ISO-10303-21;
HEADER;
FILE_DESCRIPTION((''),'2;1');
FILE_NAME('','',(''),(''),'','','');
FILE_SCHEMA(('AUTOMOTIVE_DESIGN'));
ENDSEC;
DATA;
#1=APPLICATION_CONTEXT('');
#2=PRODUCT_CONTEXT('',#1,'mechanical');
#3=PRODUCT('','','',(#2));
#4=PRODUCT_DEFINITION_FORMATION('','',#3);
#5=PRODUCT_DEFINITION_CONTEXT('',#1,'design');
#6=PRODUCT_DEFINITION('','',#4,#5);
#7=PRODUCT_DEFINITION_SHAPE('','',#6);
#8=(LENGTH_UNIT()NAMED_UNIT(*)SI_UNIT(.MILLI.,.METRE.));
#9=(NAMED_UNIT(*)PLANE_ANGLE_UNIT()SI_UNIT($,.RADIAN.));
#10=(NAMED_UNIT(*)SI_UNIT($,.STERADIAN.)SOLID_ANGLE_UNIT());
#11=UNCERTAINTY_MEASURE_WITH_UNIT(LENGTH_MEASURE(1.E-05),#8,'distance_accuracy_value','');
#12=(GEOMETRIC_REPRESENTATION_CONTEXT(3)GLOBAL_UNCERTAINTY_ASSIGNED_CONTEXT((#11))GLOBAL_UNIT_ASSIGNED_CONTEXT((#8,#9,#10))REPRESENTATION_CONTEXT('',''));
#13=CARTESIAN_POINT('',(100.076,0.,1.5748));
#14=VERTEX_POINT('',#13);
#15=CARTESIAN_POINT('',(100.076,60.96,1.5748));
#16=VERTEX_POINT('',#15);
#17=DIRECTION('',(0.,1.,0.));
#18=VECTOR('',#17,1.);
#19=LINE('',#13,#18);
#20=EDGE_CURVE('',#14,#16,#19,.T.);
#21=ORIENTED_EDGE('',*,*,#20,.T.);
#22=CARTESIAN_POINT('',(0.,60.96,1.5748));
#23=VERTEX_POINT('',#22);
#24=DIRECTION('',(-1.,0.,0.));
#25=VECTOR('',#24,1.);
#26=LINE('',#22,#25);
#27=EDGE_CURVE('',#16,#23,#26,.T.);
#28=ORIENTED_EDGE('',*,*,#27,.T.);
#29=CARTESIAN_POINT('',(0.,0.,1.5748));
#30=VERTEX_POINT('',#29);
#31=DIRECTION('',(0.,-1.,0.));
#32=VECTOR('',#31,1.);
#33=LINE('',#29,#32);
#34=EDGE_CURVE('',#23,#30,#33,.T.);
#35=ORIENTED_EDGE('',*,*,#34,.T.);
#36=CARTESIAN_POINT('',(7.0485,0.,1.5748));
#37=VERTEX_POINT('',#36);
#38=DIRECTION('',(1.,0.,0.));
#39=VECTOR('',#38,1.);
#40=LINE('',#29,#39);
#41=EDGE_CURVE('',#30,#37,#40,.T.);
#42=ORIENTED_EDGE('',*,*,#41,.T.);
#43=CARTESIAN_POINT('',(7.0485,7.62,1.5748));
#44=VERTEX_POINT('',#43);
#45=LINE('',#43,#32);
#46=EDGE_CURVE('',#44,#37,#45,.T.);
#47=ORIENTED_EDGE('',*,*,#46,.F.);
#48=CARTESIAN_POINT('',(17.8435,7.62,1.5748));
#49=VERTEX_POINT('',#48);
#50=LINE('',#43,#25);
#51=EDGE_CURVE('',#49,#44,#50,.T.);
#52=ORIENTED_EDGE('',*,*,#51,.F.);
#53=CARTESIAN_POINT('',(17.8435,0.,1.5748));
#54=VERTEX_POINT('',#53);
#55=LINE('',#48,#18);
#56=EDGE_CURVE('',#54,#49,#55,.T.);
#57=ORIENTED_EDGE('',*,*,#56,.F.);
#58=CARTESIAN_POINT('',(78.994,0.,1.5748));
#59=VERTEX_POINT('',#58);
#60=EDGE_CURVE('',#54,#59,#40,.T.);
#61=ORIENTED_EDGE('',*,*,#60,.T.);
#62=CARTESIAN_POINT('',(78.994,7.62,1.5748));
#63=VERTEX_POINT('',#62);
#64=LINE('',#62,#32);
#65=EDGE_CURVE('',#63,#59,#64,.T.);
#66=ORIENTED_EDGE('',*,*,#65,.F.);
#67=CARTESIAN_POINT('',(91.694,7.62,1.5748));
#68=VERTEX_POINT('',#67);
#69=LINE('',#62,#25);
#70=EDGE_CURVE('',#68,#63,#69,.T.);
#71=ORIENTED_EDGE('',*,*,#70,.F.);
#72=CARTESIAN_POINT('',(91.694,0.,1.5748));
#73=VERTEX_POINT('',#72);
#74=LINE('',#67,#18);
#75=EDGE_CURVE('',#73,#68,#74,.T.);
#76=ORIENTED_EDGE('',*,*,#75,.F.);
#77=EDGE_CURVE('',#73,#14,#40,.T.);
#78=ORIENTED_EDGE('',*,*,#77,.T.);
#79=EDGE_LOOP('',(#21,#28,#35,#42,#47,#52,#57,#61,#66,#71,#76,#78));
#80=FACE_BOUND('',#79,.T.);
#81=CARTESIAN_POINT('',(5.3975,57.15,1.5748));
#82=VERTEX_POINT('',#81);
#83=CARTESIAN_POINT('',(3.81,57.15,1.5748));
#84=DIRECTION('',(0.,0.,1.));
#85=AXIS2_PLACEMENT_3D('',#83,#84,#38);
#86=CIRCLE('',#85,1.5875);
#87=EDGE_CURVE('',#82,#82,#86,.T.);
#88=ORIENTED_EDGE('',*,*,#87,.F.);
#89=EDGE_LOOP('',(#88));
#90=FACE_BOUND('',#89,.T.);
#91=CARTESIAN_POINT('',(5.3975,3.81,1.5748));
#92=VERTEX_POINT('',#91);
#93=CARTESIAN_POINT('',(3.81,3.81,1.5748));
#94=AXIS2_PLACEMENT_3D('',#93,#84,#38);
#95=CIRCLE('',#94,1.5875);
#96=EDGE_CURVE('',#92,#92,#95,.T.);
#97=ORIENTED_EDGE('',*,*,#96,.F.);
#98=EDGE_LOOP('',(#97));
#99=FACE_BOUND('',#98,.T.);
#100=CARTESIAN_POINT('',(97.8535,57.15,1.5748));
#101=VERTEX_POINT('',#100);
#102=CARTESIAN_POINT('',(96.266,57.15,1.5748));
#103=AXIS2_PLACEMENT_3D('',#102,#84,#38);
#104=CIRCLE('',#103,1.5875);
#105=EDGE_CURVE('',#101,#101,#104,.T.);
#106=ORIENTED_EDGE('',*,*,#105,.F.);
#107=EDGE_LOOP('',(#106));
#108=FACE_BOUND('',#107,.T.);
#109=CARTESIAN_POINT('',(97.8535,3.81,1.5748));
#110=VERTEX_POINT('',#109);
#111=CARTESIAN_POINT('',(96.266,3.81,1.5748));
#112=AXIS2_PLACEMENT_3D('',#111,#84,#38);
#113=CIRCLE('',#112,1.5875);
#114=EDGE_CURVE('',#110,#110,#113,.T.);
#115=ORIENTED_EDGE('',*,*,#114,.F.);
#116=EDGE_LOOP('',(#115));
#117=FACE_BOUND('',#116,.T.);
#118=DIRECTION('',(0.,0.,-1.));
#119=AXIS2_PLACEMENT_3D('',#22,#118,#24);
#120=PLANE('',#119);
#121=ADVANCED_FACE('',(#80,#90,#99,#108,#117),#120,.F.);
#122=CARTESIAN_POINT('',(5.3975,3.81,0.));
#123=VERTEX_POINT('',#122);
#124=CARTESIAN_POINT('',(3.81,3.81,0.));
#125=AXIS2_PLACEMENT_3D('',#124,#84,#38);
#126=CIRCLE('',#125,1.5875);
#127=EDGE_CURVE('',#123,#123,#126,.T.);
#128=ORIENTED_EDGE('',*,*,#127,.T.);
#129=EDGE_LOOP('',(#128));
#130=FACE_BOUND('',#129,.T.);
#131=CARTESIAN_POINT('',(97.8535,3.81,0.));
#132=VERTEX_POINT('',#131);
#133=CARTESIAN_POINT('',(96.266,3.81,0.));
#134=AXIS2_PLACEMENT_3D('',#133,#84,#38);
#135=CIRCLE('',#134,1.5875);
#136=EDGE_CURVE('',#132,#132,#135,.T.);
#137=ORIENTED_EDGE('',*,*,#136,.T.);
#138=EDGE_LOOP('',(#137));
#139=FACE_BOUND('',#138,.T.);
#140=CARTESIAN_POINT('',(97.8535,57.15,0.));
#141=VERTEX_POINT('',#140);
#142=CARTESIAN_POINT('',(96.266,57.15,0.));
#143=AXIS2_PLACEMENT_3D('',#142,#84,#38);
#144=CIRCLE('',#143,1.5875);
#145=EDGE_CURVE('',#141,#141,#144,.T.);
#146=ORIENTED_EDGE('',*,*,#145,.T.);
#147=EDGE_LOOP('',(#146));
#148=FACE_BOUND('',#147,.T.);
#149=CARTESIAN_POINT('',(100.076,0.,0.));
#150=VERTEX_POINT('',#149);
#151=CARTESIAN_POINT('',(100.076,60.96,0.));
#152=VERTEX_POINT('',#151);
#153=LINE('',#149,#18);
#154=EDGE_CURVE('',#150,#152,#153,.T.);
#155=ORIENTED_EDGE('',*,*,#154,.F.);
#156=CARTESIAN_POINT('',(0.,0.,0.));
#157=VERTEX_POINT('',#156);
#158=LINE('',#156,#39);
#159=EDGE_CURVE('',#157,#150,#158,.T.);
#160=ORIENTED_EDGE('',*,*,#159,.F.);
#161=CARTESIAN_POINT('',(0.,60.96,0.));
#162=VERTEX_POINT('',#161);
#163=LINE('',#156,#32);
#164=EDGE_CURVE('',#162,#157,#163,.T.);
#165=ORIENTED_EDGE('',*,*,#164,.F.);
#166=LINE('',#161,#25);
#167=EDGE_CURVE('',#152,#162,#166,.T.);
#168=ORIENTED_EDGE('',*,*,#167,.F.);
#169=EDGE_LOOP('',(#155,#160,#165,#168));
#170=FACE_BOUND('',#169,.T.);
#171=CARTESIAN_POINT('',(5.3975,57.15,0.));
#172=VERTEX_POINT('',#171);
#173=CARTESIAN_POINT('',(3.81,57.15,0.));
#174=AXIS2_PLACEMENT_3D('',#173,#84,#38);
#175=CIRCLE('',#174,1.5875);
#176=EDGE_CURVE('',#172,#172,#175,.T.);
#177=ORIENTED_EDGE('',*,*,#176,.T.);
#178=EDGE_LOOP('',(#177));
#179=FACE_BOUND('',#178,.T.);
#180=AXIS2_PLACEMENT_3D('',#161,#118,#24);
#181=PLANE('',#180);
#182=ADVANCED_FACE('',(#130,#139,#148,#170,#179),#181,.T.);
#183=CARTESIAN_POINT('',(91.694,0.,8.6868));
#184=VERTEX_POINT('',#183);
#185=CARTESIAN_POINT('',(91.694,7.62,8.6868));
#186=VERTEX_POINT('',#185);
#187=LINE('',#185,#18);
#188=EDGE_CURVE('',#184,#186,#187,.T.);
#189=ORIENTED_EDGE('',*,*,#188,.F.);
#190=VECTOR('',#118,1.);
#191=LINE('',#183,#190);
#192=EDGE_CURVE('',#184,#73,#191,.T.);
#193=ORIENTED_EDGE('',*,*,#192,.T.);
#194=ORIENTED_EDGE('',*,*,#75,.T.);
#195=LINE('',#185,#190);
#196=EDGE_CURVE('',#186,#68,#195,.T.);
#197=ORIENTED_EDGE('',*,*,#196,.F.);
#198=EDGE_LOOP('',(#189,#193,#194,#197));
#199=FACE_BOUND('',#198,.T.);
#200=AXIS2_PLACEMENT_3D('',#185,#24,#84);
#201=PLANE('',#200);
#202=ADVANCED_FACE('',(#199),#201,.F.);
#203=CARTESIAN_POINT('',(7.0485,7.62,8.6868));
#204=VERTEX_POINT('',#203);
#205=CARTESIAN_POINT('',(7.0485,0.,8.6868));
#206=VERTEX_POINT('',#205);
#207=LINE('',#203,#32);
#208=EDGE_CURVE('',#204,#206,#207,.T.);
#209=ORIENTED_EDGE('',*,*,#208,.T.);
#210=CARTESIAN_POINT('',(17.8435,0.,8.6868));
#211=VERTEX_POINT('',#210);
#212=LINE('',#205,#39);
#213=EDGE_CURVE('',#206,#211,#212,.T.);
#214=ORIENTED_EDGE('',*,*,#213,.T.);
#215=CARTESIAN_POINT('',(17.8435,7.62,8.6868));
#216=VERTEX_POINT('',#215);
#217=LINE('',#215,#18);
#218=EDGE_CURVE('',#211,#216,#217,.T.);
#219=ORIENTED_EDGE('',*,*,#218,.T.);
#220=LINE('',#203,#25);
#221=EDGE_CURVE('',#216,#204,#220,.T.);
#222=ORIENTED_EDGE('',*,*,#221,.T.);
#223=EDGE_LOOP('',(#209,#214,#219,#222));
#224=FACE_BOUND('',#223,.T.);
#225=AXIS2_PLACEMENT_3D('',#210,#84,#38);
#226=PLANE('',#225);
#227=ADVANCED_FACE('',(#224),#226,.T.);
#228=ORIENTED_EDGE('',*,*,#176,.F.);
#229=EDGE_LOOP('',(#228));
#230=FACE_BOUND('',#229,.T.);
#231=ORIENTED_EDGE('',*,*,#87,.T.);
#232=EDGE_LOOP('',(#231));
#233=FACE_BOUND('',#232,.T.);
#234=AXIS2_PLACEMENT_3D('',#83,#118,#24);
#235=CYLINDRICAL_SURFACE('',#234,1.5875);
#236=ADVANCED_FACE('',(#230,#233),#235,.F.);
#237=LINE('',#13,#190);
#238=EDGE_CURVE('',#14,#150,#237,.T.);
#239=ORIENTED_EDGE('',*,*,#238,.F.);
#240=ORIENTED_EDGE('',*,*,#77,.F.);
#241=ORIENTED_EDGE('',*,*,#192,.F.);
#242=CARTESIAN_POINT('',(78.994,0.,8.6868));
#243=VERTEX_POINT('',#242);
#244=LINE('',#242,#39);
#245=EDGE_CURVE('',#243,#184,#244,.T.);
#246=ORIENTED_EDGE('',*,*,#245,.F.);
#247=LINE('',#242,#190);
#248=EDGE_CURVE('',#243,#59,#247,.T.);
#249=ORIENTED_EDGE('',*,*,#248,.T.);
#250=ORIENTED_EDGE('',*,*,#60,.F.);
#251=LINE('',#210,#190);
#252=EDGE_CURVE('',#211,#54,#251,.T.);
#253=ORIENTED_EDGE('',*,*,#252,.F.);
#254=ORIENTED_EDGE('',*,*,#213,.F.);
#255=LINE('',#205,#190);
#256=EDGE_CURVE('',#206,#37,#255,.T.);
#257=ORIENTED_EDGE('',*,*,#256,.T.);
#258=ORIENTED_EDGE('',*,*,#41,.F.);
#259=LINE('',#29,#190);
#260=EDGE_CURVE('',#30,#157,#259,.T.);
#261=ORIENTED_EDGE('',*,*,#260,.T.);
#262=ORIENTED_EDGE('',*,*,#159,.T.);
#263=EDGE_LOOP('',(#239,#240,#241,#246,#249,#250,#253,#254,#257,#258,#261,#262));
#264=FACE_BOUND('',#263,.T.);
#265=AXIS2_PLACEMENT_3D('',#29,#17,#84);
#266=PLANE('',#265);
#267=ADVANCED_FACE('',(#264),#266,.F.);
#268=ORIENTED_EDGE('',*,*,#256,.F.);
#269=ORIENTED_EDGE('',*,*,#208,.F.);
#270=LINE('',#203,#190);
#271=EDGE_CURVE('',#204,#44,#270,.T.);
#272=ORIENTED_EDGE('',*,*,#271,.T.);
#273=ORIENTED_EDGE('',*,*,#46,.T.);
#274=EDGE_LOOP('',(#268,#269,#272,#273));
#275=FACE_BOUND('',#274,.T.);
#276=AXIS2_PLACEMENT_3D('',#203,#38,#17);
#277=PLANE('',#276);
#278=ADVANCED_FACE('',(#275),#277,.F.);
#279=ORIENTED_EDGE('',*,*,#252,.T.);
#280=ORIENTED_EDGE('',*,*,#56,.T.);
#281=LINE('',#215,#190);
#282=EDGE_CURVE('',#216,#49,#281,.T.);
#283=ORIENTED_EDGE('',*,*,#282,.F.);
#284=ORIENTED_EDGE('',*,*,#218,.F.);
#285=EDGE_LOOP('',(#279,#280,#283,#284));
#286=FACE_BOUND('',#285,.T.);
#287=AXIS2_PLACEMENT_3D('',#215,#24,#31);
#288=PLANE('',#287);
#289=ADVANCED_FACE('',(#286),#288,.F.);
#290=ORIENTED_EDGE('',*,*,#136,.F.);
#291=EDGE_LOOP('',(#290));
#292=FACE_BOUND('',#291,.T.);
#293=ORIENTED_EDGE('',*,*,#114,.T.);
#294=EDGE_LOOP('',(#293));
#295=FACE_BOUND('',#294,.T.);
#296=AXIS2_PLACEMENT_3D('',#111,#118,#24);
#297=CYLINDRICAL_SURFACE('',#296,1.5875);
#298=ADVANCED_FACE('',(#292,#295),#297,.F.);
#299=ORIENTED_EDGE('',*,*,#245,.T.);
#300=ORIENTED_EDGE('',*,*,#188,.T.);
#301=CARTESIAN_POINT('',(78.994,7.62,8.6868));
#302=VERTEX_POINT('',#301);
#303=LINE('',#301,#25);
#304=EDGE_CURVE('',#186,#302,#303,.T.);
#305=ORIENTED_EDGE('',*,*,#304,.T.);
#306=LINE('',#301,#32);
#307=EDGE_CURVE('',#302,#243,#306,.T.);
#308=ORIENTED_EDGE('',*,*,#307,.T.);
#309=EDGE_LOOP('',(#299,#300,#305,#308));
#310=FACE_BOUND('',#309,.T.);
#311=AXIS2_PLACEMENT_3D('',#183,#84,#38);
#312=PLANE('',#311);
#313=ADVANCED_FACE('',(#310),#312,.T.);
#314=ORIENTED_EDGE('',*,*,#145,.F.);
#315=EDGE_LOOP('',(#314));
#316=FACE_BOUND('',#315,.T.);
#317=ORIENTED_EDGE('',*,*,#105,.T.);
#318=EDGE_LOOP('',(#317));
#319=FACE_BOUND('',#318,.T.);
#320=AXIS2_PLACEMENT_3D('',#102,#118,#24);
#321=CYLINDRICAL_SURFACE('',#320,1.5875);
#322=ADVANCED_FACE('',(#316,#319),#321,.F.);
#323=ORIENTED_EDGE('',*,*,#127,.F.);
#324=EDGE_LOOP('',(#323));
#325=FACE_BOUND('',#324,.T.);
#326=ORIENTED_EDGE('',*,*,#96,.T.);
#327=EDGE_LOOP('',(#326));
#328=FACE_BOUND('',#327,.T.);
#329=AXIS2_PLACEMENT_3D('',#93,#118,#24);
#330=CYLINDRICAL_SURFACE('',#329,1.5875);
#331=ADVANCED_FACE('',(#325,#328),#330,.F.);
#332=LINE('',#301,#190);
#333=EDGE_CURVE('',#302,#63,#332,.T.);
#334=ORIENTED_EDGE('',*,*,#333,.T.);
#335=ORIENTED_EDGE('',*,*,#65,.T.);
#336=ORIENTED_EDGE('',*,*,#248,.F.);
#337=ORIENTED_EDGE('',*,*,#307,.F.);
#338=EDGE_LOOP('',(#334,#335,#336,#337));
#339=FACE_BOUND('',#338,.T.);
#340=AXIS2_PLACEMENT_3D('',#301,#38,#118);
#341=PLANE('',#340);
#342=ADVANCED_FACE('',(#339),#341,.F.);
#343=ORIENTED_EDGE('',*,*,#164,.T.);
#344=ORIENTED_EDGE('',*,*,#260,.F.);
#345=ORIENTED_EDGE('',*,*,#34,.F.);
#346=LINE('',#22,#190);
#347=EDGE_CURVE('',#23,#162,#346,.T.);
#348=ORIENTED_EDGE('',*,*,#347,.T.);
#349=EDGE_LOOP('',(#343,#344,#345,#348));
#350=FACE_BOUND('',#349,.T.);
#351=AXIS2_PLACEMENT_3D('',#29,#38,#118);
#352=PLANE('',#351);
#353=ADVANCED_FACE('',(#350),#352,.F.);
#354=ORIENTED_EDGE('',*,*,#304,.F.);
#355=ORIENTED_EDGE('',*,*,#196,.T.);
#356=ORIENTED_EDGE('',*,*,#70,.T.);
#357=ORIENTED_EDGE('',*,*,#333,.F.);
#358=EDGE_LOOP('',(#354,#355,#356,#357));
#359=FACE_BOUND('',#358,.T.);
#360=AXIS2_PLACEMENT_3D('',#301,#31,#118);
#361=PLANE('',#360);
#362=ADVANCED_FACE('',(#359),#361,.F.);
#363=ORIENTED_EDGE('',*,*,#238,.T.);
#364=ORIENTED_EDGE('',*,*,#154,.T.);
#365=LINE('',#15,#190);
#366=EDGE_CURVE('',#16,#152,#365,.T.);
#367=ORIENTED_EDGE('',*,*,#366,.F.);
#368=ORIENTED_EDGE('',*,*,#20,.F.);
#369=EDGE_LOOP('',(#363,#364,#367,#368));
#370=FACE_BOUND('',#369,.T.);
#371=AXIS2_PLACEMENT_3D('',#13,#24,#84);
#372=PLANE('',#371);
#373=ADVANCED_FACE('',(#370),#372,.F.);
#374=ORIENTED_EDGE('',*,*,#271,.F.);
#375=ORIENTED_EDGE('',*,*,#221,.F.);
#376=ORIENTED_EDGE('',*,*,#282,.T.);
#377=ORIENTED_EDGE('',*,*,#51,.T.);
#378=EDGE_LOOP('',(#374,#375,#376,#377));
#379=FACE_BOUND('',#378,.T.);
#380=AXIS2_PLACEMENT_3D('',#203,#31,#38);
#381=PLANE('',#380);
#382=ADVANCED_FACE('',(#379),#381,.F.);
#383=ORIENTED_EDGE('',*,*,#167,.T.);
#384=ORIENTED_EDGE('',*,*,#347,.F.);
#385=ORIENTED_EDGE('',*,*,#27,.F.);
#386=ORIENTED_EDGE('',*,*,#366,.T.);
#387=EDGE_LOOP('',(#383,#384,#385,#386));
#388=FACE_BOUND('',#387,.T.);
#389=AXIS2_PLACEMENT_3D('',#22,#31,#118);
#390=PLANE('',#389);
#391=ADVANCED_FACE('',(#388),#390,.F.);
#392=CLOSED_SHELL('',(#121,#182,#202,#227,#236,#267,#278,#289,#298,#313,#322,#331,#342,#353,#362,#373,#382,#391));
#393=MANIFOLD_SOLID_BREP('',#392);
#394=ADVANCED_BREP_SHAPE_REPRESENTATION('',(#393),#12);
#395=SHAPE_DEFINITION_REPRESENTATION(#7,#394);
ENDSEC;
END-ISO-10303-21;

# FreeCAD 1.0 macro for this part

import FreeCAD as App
import Part
import Sketcher
from FreeCAD import Vector
Q = App.Units.Quantity

doc = App.newDocument("Part")
body = doc.addObject("PartDesign::Body", "Body")

# Sketch on XY plane
sketch1 = doc.addObject("Sketcher::SketchObject", "Sketch")
body.addObject(sketch1)
sketch1.AttachmentSupport = (doc.XY_Plane, [""])
sketch1.MapMode = "FlatFace"
sketch1.addGeometry(Part.LineSegment(Vector(0, 61, 0), Vector(0, 0, 0)), False)
sketch1.addGeometry(Part.LineSegment(Vector(0, 0, 0), Vector(100.1, 0, 0)), False)
sketch1.addGeometry(Part.LineSegment(Vector(100.1, 0, 0), Vector(100.1, 61, 0)), False)
sketch1.addGeometry(Part.LineSegment(Vector(100.1, 61, 0), Vector(0, 61, 0)), False)
sketch1.addGeometry(Part.Circle(Vector(3.8, 3.8, 0), Vector(0, 0, 1), 1.6), False)
sketch1.addGeometry(Part.Circle(Vector(96.3, 3.8, 0), Vector(0, 0, 1), 1.6), False)
sketch1.addGeometry(Part.Circle(Vector(3.8, 57.1, 0), Vector(0, 0, 1), 1.6), False)
sketch1.addGeometry(Part.Circle(Vector(96.3, 57.1, 0), Vector(0, 0, 1), 1.6), False)
sketch1.addConstraint(Sketcher.Constraint("Coincident", 0, 2, 1, 1))
sketch1.addConstraint(Sketcher.Constraint("Coincident", 1, 2, 2, 1))
sketch1.addConstraint(Sketcher.Constraint("Coincident", 2, 2, 3, 1))
sketch1.addConstraint(Sketcher.Constraint("Coincident", 3, 2, 0, 1))
sketch1.addConstraint(Sketcher.Constraint("Vertical", 0))
sketch1.addConstraint(Sketcher.Constraint("Horizontal", 1))
sketch1.addConstraint(Sketcher.Constraint("Vertical", 2))
sketch1.addConstraint(Sketcher.Constraint("Horizontal", 3))
sketch1.addConstraint(Sketcher.Constraint("Coincident", 0, 2, -1, 1))
sketch1.addConstraint(Sketcher.Constraint("Equal", 4, 5))
sketch1.addConstraint(Sketcher.Constraint("Equal", 5, 6))
sketch1.addConstraint(Sketcher.Constraint("Equal", 6, 7))
sketch1.addConstraint(Sketcher.Constraint("Horizontal", 4, 3, 5, 3))
sketch1.addConstraint(Sketcher.Constraint("Horizontal", 6, 3, 7, 3))
sketch1.addConstraint(Sketcher.Constraint("Vertical", 4, 3, 6, 3))
sketch1.addConstraint(Sketcher.Constraint("Vertical", 5, 3, 7, 3))
sketch1.addConstraint(Sketcher.Constraint("Diameter", 4, Q("0.125 in")))
sketch1.addConstraint(Sketcher.Constraint("DistanceY", 0, 2, 0, 1, Q("2.4 in")))
sketch1.addConstraint(Sketcher.Constraint("DistanceX", 1, 1, 1, 2, Q("3.94 in")))
sketch1.addConstraint(Sketcher.Constraint("DistanceY", 4, 3, 6, 3, Q("2.1 in")))
sketch1.addConstraint(Sketcher.Constraint("DistanceX", -1, 1, 4, 3, Q("0.15 in")))
sketch1.addConstraint(Sketcher.Constraint("DistanceY", -1, 1, 4, 3, Q("0.15 in")))
sketch1.addConstraint(Sketcher.Constraint("DistanceX", -1, 1, 5, 3, Q("3.79 in")))
pad1 = doc.addObject("PartDesign::Pad", "Pad")
body.addObject(pad1)
pad1.Profile = sketch1
pad1.Length = Q("0.062 in")

# Sketch on XY plane
sketch2 = doc.addObject("Sketcher::SketchObject", "Sketch001")
body.addObject(sketch2)
sketch2.AttachmentSupport = (doc.XY_Plane, [""])
sketch2.MapMode = "FlatFace"
sketch2.AttachmentOffset = App.Placement(Vector(0, 0, 0.062 * 25.4), App.Rotation())
sketch2.addGeometry(Part.LineSegment(Vector(7, 8, 0), Vector(7, 0, 0)), False)
sketch2.addGeometry(Part.LineSegment(Vector(7, 0, 0), Vector(18, 0, 0)), False)
sketch2.addGeometry(Part.LineSegment(Vector(18, 0, 0), Vector(18, 8, 0)), False)
sketch2.addGeometry(Part.LineSegment(Vector(18, 8, 0), Vector(7, 8, 0)), False)
sketch2.addGeometry(Part.LineSegment(Vector(79, 8, 0), Vector(79, 0, 0)), False)
sketch2.addGeometry(Part.LineSegment(Vector(79, 0, 0), Vector(92, 0, 0)), False)
sketch2.addGeometry(Part.LineSegment(Vector(92, 0, 0), Vector(92, 8, 0)), False)
sketch2.addGeometry(Part.LineSegment(Vector(92, 8, 0), Vector(79, 8, 0)), False)
sketch2.addConstraint(Sketcher.Constraint("Coincident", 0, 2, 1, 1))
sketch2.addConstraint(Sketcher.Constraint("Coincident", 1, 2, 2, 1))
sketch2.addConstraint(Sketcher.Constraint("Coincident", 2, 2, 3, 1))
sketch2.addConstraint(Sketcher.Constraint("Coincident", 3, 2, 0, 1))
sketch2.addConstraint(Sketcher.Constraint("Coincident", 4, 2, 5, 1))
sketch2.addConstraint(Sketcher.Constraint("Coincident", 5, 2, 6, 1))
sketch2.addConstraint(Sketcher.Constraint("Coincident", 6, 2, 7, 1))
sketch2.addConstraint(Sketcher.Constraint("Coincident", 7, 2, 4, 1))
sketch2.addConstraint(Sketcher.Constraint("Vertical", 0))
sketch2.addConstraint(Sketcher.Constraint("Horizontal", 1))
sketch2.addConstraint(Sketcher.Constraint("Vertical", 2))
sketch2.addConstraint(Sketcher.Constraint("Horizontal", 3))
sketch2.addConstraint(Sketcher.Constraint("Vertical", 4))
sketch2.addConstraint(Sketcher.Constraint("Horizontal", 5))
sketch2.addConstraint(Sketcher.Constraint("Vertical", 6))
sketch2.addConstraint(Sketcher.Constraint("Horizontal", 7))
sketch2.addConstraint(Sketcher.Constraint("PointOnObject", 0, 2, -1))
sketch2.addConstraint(Sketcher.Constraint("PointOnObject", 4, 2, -1))
sketch2.addConstraint(Sketcher.Constraint("Horizontal", 3, 2, 6, 2))
sketch2.addConstraint(Sketcher.Constraint("DistanceX", 5, 1, 5, 2, Q("0.5 in")))
sketch2.addConstraint(Sketcher.Constraint("DistanceY", 0, 2, 0, 1, Q("0.3 in")))
sketch2.addConstraint(Sketcher.Constraint("DistanceX", 1, 1, 1, 2, Q("0.425 in")))
sketch2.addConstraint(Sketcher.Constraint("DistanceX", -1, 1, 4, 2, Q("3.11 in")))
sketch2.addConstraint(Sketcher.Constraint("DistanceX", -1, 1, 0, 2, Q("0.2775 in")))
pad2 = doc.addObject("PartDesign::Pad", "Pad001")
body.addObject(pad2)
pad2.Profile = sketch2
pad2.Length = Q("0.28 in")

doc.recompute()
